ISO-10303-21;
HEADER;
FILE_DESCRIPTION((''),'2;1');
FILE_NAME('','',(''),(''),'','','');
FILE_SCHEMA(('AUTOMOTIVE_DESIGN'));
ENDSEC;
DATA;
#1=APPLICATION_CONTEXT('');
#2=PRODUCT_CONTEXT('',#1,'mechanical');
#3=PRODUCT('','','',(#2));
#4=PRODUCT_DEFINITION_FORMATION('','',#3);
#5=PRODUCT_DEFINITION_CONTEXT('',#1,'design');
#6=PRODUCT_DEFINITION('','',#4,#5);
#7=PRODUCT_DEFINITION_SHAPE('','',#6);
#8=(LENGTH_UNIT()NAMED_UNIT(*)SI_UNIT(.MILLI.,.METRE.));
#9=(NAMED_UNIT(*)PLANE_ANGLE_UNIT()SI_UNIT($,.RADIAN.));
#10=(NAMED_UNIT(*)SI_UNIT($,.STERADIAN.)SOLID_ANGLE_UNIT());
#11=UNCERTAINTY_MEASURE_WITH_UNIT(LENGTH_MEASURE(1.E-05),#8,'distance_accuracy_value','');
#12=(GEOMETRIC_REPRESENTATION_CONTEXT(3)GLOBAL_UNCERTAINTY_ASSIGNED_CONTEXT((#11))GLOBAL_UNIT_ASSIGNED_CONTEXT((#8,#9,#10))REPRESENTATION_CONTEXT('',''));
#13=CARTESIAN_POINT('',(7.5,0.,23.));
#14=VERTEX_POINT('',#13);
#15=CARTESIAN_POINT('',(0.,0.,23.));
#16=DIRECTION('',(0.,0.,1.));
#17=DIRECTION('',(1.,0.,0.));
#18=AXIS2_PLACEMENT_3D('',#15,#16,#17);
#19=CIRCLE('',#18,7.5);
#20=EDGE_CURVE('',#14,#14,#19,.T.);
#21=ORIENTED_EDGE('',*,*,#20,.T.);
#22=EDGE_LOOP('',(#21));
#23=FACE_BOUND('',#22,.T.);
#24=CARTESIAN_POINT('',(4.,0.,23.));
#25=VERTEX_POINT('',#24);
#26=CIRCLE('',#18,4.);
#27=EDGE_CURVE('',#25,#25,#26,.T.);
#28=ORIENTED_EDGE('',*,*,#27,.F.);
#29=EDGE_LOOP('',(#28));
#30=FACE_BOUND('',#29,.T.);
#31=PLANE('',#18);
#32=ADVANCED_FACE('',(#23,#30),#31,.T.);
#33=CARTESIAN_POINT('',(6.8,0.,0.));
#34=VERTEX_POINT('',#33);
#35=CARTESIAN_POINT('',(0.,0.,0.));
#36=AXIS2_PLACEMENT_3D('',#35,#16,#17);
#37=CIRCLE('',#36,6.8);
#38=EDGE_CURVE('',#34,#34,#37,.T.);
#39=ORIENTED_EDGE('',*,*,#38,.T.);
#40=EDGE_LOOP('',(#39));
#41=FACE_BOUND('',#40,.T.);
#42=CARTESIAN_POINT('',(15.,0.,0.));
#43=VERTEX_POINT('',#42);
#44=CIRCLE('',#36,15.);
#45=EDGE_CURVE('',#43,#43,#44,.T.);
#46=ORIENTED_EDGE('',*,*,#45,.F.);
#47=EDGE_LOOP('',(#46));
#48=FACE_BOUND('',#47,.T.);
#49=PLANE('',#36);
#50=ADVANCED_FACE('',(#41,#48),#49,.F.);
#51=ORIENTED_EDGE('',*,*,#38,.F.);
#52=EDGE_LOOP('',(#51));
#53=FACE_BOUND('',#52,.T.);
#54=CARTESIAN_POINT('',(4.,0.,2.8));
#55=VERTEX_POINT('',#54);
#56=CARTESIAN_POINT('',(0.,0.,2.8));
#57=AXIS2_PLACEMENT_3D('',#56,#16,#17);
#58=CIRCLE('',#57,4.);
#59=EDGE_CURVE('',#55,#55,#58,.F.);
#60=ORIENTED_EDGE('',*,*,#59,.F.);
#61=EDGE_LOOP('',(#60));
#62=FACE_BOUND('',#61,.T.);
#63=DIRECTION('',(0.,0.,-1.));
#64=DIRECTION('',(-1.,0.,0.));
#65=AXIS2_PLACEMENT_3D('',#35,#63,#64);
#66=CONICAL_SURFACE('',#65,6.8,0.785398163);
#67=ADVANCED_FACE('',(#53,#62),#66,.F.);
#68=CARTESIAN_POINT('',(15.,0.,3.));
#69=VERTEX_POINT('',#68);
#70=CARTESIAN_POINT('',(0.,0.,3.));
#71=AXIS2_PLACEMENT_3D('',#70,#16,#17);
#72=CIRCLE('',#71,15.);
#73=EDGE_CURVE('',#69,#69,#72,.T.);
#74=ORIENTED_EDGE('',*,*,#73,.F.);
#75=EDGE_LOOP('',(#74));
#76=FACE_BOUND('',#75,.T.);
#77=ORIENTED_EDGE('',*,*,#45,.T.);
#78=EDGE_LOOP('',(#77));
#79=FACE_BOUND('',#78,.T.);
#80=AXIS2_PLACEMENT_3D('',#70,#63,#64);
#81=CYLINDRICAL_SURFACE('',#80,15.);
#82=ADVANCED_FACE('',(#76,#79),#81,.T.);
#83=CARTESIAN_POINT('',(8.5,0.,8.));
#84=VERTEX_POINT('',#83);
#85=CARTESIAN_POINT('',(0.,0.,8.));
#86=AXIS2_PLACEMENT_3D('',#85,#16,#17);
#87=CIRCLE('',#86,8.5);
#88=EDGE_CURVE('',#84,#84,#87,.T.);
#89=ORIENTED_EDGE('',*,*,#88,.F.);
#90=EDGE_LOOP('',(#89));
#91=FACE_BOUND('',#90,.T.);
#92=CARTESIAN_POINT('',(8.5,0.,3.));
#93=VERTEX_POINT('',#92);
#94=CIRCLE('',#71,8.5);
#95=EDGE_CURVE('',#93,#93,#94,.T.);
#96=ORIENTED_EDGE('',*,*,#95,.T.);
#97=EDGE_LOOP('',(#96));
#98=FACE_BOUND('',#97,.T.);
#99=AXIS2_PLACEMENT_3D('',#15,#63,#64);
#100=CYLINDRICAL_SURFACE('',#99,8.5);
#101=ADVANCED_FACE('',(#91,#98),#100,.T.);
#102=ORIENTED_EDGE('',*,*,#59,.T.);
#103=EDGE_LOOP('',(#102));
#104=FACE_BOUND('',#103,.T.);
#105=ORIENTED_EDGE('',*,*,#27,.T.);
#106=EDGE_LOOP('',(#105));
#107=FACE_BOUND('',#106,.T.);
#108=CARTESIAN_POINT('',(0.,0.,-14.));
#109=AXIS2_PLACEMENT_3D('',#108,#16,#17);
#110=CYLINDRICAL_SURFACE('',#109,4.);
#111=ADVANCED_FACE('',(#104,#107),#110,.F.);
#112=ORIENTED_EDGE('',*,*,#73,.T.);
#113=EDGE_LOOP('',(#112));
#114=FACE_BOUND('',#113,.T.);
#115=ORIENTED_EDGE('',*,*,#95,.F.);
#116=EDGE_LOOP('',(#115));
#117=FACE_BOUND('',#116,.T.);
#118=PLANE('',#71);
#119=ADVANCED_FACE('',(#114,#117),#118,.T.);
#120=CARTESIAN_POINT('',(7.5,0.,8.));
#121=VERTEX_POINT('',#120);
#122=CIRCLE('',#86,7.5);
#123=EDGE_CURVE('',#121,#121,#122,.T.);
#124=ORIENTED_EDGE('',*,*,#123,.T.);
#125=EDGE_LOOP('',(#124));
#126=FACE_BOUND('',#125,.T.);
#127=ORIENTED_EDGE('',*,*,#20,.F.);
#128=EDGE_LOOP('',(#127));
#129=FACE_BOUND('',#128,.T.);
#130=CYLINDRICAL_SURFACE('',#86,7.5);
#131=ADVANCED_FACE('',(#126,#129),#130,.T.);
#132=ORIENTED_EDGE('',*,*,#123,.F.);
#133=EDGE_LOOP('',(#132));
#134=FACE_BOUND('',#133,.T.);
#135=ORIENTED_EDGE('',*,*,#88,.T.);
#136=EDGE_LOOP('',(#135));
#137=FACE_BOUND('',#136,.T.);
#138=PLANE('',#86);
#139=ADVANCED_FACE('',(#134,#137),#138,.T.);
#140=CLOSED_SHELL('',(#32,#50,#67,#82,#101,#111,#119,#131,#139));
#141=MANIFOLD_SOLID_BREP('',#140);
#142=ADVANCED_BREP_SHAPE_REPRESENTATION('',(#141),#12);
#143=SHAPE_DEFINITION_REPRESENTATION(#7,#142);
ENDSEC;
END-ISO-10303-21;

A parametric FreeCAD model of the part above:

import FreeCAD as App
import Part
import Sketcher

V = App.Vector
Q = App.Units.Quantity


def edges_at(feature, points):
    """Names of the edges that pass closest to the given points."""
    edges = feature.Shape.Edges
    near = lambda p: min(range(len(edges)), key=lambda i: edges[i].distToShape(Part.Vertex(*p))[0])
    return sorted({f"Edge{near(p) + 1}" for p in points})

doc = App.newDocument("Part")
params = doc.addObject("Spreadsheet::Sheet", "Params")
for row, (alias, value) in enumerate([
    ("sketch1_diameter", "30 mm"),
    ("pad1_length", "3 mm"),
    ("sketch2_diameter", "17 mm"),
    ("pad2_length", "20 mm"),
    ("sketch3_diameter", "15 mm"),
    ("pocket1_length", "15 mm"),
    ("sketch4_diameter", "8 mm"),
    ("pocket2_length", "37 mm"),
    ("chamfer_size", "2.8 mm"),
], start=1):
    params.set(f"A{row}", alias)
    params.set(f"B{row}", "=" + value)
    params.setAlias(f"B{row}", alias)

body = doc.addObject("PartDesign::Body", "Body")

sketch1 = doc.addObject("Sketcher::SketchObject", "Sketch")
body.addObject(sketch1)
sketch1.AttachmentSupport = (doc.XY_Plane, [""])
sketch1.MapMode = "FlatFace"
sketch1.addGeometry(Part.Circle(V(0, 0, 0), V(0, 0, 1), 15), False)
sketch1.addConstraint([
    Sketcher.Constraint("Coincident", 0, 3, -1, 1),
    Sketcher.Constraint("Diameter", 0, Q("30 mm")),
])
sketch1.setExpression("Constraints[1]", "Params.sketch1_diameter")
pad1 = doc.addObject("PartDesign::Pad", "Pad")
body.addObject(pad1)
pad1.Profile = sketch1
pad1.setExpression("Length", "Params.pad1_length")

sketch2 = doc.addObject("Sketcher::SketchObject", "Sketch001")
body.addObject(sketch2)
sketch2.AttachmentSupport = (doc.XY_Plane, [""])
sketch2.MapMode = "FlatFace"
sketch2.AttachmentOffset = App.Placement(V(0, 0, 3), App.Rotation())
sketch2.addGeometry(Part.Circle(V(0, 0, 0), V(0, 0, 1), 8), False)
sketch2.addConstraint([
    Sketcher.Constraint("Coincident", 0, 3, -1, 1),
    Sketcher.Constraint("Diameter", 0, Q("17 mm")),
])
sketch2.setExpression("Constraints[1]", "Params.sketch2_diameter")
pad2 = doc.addObject("PartDesign::Pad", "Pad001")
body.addObject(pad2)
pad2.Profile = sketch2
pad2.setExpression("Length", "Params.pad2_length")

sketch3 = doc.addObject("Sketcher::SketchObject", "Sketch002")
body.addObject(sketch3)
sketch3.AttachmentSupport = (doc.XY_Plane, [""])
sketch3.MapMode = "FlatFace"
sketch3.AttachmentOffset = App.Placement(V(0, 0, 23), App.Rotation())
sketch3.addGeometry([
    Part.Circle(V(0, 0, 0), V(0, 0, 1), 10),
    Part.Circle(V(0, 0, 0), V(0, 0, 1), 8),
], False)
sketch3.addConstraint([
    Sketcher.Constraint("Coincident", 0, 3, -1, 1),
    Sketcher.Constraint("Coincident", 1, 3, -1, 1),
    Sketcher.Constraint("Diameter", 1, Q("15 mm")),
    Sketcher.Constraint("Diameter", 0, Q("20.665766 mm")),
])
sketch3.setExpression("Constraints[2]", "Params.sketch3_diameter")
pocket1 = doc.addObject("PartDesign::Pocket", "Pocket")
body.addObject(pocket1)
pocket1.Profile = sketch3
pocket1.setExpression("Length", "Params.pocket1_length")

sketch4 = doc.addObject("Sketcher::SketchObject", "Sketch003")
body.addObject(sketch4)
sketch4.AttachmentSupport = (doc.XY_Plane, [""])
sketch4.MapMode = "FlatFace"
sketch4.AttachmentOffset = App.Placement(V(0, 0, 23), App.Rotation())
sketch4.addGeometry(Part.Circle(V(0, 0, 0), V(0, 0, 1), 4), False)
sketch4.addConstraint([
    Sketcher.Constraint("Coincident", 0, 3, -1, 1),
    Sketcher.Constraint("Diameter", 0, Q("8 mm")),
])
sketch4.setExpression("Constraints[1]", "Params.sketch4_diameter")
pocket2 = doc.addObject("PartDesign::Pocket", "Pocket001")
body.addObject(pocket2)
pocket2.Profile = sketch4
pocket2.setExpression("Length", "Params.pocket2_length")
doc.recompute()

chamfer = doc.addObject("PartDesign::Chamfer", "Chamfer")
body.addObject(chamfer)
chamfer.Base = (pocket2, edges_at(pocket2, [(-4, 0, 0)]))
chamfer.setExpression("Size", "Params.chamfer_size")

doc.recompute()
